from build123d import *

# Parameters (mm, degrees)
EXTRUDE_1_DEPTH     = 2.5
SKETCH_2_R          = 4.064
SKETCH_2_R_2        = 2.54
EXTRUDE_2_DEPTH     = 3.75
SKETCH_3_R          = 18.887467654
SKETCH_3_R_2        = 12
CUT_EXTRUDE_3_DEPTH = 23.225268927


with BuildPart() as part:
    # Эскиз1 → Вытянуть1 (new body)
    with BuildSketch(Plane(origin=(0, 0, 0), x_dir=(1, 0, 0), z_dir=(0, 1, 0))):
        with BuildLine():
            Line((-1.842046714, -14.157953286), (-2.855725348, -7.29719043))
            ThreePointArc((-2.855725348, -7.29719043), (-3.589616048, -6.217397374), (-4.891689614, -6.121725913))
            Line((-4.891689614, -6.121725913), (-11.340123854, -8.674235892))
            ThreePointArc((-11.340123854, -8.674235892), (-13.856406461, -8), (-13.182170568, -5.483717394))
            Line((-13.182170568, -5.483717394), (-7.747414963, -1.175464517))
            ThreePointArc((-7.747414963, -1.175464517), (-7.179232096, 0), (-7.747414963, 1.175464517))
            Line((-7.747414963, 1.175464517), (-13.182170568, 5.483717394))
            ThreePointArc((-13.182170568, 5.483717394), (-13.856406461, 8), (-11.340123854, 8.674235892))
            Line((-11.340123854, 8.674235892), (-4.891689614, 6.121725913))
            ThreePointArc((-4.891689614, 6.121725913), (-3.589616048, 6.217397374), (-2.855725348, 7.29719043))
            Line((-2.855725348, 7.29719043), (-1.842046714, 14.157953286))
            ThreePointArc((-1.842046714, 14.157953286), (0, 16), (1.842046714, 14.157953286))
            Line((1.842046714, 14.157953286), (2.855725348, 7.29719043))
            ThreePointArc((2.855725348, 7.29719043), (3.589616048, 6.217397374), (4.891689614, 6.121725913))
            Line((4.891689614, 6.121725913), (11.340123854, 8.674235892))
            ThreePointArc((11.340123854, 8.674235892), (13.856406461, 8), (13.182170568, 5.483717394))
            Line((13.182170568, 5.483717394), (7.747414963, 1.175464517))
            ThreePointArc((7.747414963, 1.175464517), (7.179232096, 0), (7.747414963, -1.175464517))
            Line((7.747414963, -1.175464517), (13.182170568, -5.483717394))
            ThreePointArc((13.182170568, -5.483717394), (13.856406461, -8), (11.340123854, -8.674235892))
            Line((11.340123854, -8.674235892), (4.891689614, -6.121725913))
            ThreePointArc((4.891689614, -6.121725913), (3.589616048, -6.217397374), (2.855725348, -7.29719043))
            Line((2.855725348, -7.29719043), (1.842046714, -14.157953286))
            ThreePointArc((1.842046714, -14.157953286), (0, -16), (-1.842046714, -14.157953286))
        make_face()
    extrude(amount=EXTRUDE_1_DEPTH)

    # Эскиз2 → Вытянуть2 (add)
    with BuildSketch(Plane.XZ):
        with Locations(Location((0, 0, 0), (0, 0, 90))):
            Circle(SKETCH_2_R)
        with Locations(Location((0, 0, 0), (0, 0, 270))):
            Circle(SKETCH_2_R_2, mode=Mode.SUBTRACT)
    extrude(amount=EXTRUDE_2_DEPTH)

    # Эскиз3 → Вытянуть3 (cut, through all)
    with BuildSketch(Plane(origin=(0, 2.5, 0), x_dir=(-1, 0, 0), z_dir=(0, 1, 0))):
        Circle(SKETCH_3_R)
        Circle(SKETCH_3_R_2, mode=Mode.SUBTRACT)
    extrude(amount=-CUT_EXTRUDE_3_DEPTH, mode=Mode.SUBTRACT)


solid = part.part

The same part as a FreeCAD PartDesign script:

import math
import FreeCAD as App
import Part
import Sketcher
from FreeCAD import Vector

doc = App.newDocument("Part")
body = doc.addObject("PartDesign::Body", "Body")

# Sketch on XZ plane
sketch1 = body.newObject("Sketcher::SketchObject", "Sketch")
sketch1.AttachmentSupport = (doc.getObject("XZ_Plane"), [""])
sketch1.MapMode = "FlatFace"
sketch1.addGeometry(Part.LineSegment(Vector(-2.9, 7.3, 0), Vector(-1.8, 14.2, 0)), False)
sketch1.addGeometry(Part.ArcOfCircle(Part.Circle(Vector(0, 14.2, 0), Vector(0, 0, 1), 1.8), math.radians(0), math.radians(180)), False)
sketch1.addGeometry(Part.LineSegment(Vector(1.8, 14.2, 0), Vector(2.9, 7.3, 0)), False)
sketch1.addGeometry(Part.ArcOfCircle(Part.Circle(Vector(4.3, 7.5, 0), Vector(0, 0, 1), 1.5), math.radians(-172), math.radians(-68)), False)
sketch1.addGeometry(Part.LineSegment(Vector(4.9, 6.1, 0), Vector(11.3, 8.7, 0)), False)
sketch1.addGeometry(Part.ArcOfCircle(Part.Circle(Vector(12.3, 7.1, 0), Vector(0, 0, 1), 1.8), math.radians(-60), math.radians(120)), False)
sketch1.addGeometry(Part.LineSegment(Vector(13.2, 5.5, 0), Vector(7.7, 1.2, 0)), False)
sketch1.addGeometry(Part.ArcOfCircle(Part.Circle(Vector(8.7, 0, 0), Vector(0, 0, 1), 1.5), math.radians(128), math.radians(232)), False)
sketch1.addGeometry(Part.LineSegment(Vector(7.7, -1.2, 0), Vector(13.2, -5.5, 0)), False)
sketch1.addGeometry(Part.ArcOfCircle(Part.Circle(Vector(12.3, -7.1, 0), Vector(0, 0, 1), 1.8), math.radians(-120), math.radians(60)), False)
sketch1.addGeometry(Part.LineSegment(Vector(11.3, -8.7, 0), Vector(4.9, -6.1, 0)), False)
sketch1.addGeometry(Part.ArcOfCircle(Part.Circle(Vector(4.3, -7.5, 0), Vector(0, 0, 1), 1.5), math.radians(68), math.radians(172)), False)
sketch1.addGeometry(Part.LineSegment(Vector(2.9, -7.3, 0), Vector(1.8, -14.2, 0)), False)
sketch1.addGeometry(Part.ArcOfCircle(Part.Circle(Vector(0, -14.2, 0), Vector(0, 0, 1), 1.8), math.radians(180), math.radians(360)), False)
sketch1.addGeometry(Part.LineSegment(Vector(-1.8, -14.2, 0), Vector(-2.9, -7.3, 0)), False)
sketch1.addGeometry(Part.ArcOfCircle(Part.Circle(Vector(-4.3, -7.5, 0), Vector(0, 0, 1), 1.5), math.radians(8), math.radians(112)), False)
sketch1.addGeometry(Part.LineSegment(Vector(-4.9, -6.1, 0), Vector(-11.3, -8.7, 0)), False)
sketch1.addGeometry(Part.ArcOfCircle(Part.Circle(Vector(-12.3, -7.1, 0), Vector(0, 0, 1), 1.8), math.radians(120), math.radians(300)), False)
sketch1.addGeometry(Part.LineSegment(Vector(-13.2, -5.5, 0), Vector(-7.7, -1.2, 0)), False)
sketch1.addGeometry(Part.ArcOfCircle(Part.Circle(Vector(-8.7, 0, 0), Vector(0, 0, 1), 1.5), math.radians(-52), math.radians(52)), False)
sketch1.addGeometry(Part.LineSegment(Vector(-7.7, 1.2, 0), Vector(-13.2, 5.5, 0)), False)
sketch1.addGeometry(Part.ArcOfCircle(Part.Circle(Vector(-12.3, 7.1, 0), Vector(0, 0, 1), 1.8), math.radians(60), math.radians(240)), False)
sketch1.addGeometry(Part.LineSegment(Vector(-11.3, 8.7, 0), Vector(-4.9, 6.1, 0)), False)
sketch1.addGeometry(Part.ArcOfCircle(Part.Circle(Vector(-4.3, 7.5, 0), Vector(0, 0, 1), 1.5), math.radians(-112), math.radians(-8)), False)
sketch1.addConstraint(Sketcher.Constraint("Coincident", 0, 2, 1, 2))
sketch1.addConstraint(Sketcher.Constraint("Coincident", 1, 1, 2, 1))
sketch1.addConstraint(Sketcher.Constraint("Tangent", 2, 2, 3, 1))
sketch1.addConstraint(Sketcher.Constraint("Tangent", 3, 2, 4, 1))
sketch1.addConstraint(Sketcher.Constraint("Coincident", 4, 2, 5, 2))
sketch1.addConstraint(Sketcher.Constraint("Coincident", 5, 1, 6, 1))
sketch1.addConstraint(Sketcher.Constraint("Tangent", 6, 2, 7, 1))
sketch1.addConstraint(Sketcher.Constraint("Tangent", 7, 2, 8, 1))
sketch1.addConstraint(Sketcher.Constraint("Coincident", 8, 2, 9, 2))
sketch1.addConstraint(Sketcher.Constraint("Coincident", 9, 1, 10, 1))
sketch1.addConstraint(Sketcher.Constraint("Tangent", 10, 2, 11, 1))
sketch1.addConstraint(Sketcher.Constraint("Tangent", 11, 2, 12, 1))
sketch1.addConstraint(Sketcher.Constraint("Coincident", 12, 2, 13, 2))
sketch1.addConstraint(Sketcher.Constraint("Coincident", 13, 1, 14, 1))
sketch1.addConstraint(Sketcher.Constraint("Tangent", 14, 2, 15, 1))
sketch1.addConstraint(Sketcher.Constraint("Tangent", 15, 2, 16, 1))
sketch1.addConstraint(Sketcher.Constraint("Coincident", 16, 2, 17, 2))
sketch1.addConstraint(Sketcher.Constraint("Coincident", 17, 1, 18, 1))
sketch1.addConstraint(Sketcher.Constraint("Tangent", 18, 2, 19, 1))
sketch1.addConstraint(Sketcher.Constraint("Tangent", 19, 2, 20, 1))
sketch1.addConstraint(Sketcher.Constraint("Coincident", 20, 2, 21, 2))
sketch1.addConstraint(Sketcher.Constraint("Coincident", 21, 1, 22, 1))
sketch1.addConstraint(Sketcher.Constraint("Tangent", 22, 2, 23, 1))
sketch1.addConstraint(Sketcher.Constraint("Tangent", 23, 2, 0, 1))
sketch1.addConstraint(Sketcher.Constraint("Equal", 1, 5))
sketch1.addConstraint(Sketcher.Constraint("Equal", 3, 7))
sketch1.addConstraint(Sketcher.Constraint("Equal", 5, 9))
sketch1.addConstraint(Sketcher.Constraint("Equal", 7, 11))
sketch1.addConstraint(Sketcher.Constraint("Equal", 9, 13))
sketch1.addConstraint(Sketcher.Constraint("Equal", 11, 15))
sketch1.addConstraint(Sketcher.Constraint("Equal", 13, 17))
sketch1.addConstraint(Sketcher.Constraint("Equal", 15, 19))
sketch1.addConstraint(Sketcher.Constraint("Equal", 17, 21))
sketch1.addConstraint(Sketcher.Constraint("Equal", 19, 23))
sketch1.addConstraint(Sketcher.Constraint("Symmetric", 1, 3, 13, 3, -1, 1))
sketch1.addConstraint(Sketcher.Constraint("Symmetric", 3, 3, 15, 3, -1, 1))
sketch1.addConstraint(Sketcher.Constraint("Symmetric", 5, 3, 17, 3, -1, 1))
sketch1.addConstraint(Sketcher.Constraint("Symmetric", 7, 3, 19, 3, -1, 1))
sketch1.addConstraint(Sketcher.Constraint("Symmetric", 9, 3, 21, 3, -1, 1))
sketch1.addConstraint(Sketcher.Constraint("Symmetric", 11, 3, 23, 3, -1, 1))
sketch1.addConstraint(Sketcher.Constraint("Symmetric", 11, 3, 15, 3, -2))
sketch1.addConstraint(Sketcher.Constraint("Symmetric", 9, 3, 17, 3, -2))
sketch1.addConstraint(Sketcher.Constraint("Symmetric", 0, 2, 1, 1, -2))
sketch1.addConstraint(Sketcher.Constraint("Symmetric", 7, 2, 18, 2, -2))
sketch1.addConstraint(Sketcher.Constraint("Parallel", 0, 12))
sketch1.addConstraint(Sketcher.Constraint("Parallel", 2, 14))
sketch1.addConstraint(Sketcher.Constraint("Parallel", 4, 16))
sketch1.addConstraint(Sketcher.Constraint("Parallel", 6, 18))
sketch1.addConstraint(Sketcher.Constraint("Parallel", 8, 20))
sketch1.addConstraint(Sketcher.Constraint("Parallel", 10, 22))
sketch1.addConstraint(Sketcher.Constraint("Horizontal", 1, 3, 0, 2))
sketch1.addConstraint(Sketcher.Constraint("Horizontal", 10, 2, 15, 2))
sketch1.addConstraint(Sketcher.Constraint("Equal", 2, 4))
sketch1.addConstraint(Sketcher.Constraint("Equal", 4, 6))
sketch1.addConstraint(Sketcher.Constraint("Radius", 3, 1.5))
sketch1.addConstraint(Sketcher.Constraint("Radius", 1, 1.842047))
sketch1.addConstraint(Sketcher.Constraint("DistanceX", 21, 3, 0, 2, 10.4191))
sketch1.addConstraint(Sketcher.Constraint("DistanceY", 3, 3, 4, 2, 1.1578))
sketch1.addConstraint(Sketcher.Constraint("DistanceX", 2, 2, 4, 2, 8.484399))
sketch1.addConstraint(Sketcher.Constraint("DistanceX", 3, 3, 6, 2, 3.407799))
sketch1.addConstraint(Sketcher.Constraint("DistanceY", -1, 1, 2, 2, 7.29719))
sketch1.addConstraint(Sketcher.Constraint("DistanceX", -1, 1, 3, 2, 4.89169))
pad1 = body.newObject("PartDesign::Pad", "Pad")
pad1.Profile = sketch1
pad1.Length = 2.5
pad1.Reversed = True

# Sketch on XZ plane
sketch2 = body.newObject("Sketcher::SketchObject", "Sketch001")
sketch2.AttachmentSupport = (doc.getObject("XZ_Plane"), [""])
sketch2.MapMode = "FlatFace"
sketch2.addGeometry(Part.Circle(Vector(0, 0, 0), Vector(0, 0, 1), 4.1), False)
sketch2.addGeometry(Part.Circle(Vector(0, 0, 0), Vector(0, 0, 1), 2.5), False)
sketch2.addConstraint(Sketcher.Constraint("Coincident", 0, 3, -1, 1))
sketch2.addConstraint(Sketcher.Constraint("Coincident", 1, 3, -1, 1))
sketch2.addConstraint(Sketcher.Constraint("Diameter", 1, 5.08))
sketch2.addConstraint(Sketcher.Constraint("Diameter", 0, 8.128))
pad2 = body.newObject("PartDesign::Pad", "Pad001")
pad2.Profile = sketch2
pad2.Length = 3.75

# Sketch on XZ plane
sketch3 = body.newObject("Sketcher::SketchObject", "Sketch002")
sketch3.AttachmentSupport = (doc.getObject("XZ_Plane"), [""])
sketch3.MapMode = "FlatFace"
sketch3.AttachmentOffset = App.Placement(Vector(0, 0, -2.5), App.Rotation())
sketch3.addGeometry(Part.Circle(Vector(0, 0, 0), Vector(0, 0, 1), 19), False)
sketch3.addGeometry(Part.Circle(Vector(0, 0, 0), Vector(0, 0, 1), 12), False)
sketch3.addConstraint(Sketcher.Constraint("Coincident", 0, 3, -1, 1))
sketch3.addConstraint(Sketcher.Constraint("Coincident", 1, 3, -1, 1))
sketch3.addConstraint(Sketcher.Constraint("Diameter", 1, 24.0))
sketch3.addConstraint(Sketcher.Constraint("Diameter", 0, 37.774935))
pocket1 = body.newObject("PartDesign::Pocket", "Pocket")
pocket1.Profile = sketch3
pocket1.Type = "ThroughAll"
pocket1.Reversed = True

doc.recompute()
